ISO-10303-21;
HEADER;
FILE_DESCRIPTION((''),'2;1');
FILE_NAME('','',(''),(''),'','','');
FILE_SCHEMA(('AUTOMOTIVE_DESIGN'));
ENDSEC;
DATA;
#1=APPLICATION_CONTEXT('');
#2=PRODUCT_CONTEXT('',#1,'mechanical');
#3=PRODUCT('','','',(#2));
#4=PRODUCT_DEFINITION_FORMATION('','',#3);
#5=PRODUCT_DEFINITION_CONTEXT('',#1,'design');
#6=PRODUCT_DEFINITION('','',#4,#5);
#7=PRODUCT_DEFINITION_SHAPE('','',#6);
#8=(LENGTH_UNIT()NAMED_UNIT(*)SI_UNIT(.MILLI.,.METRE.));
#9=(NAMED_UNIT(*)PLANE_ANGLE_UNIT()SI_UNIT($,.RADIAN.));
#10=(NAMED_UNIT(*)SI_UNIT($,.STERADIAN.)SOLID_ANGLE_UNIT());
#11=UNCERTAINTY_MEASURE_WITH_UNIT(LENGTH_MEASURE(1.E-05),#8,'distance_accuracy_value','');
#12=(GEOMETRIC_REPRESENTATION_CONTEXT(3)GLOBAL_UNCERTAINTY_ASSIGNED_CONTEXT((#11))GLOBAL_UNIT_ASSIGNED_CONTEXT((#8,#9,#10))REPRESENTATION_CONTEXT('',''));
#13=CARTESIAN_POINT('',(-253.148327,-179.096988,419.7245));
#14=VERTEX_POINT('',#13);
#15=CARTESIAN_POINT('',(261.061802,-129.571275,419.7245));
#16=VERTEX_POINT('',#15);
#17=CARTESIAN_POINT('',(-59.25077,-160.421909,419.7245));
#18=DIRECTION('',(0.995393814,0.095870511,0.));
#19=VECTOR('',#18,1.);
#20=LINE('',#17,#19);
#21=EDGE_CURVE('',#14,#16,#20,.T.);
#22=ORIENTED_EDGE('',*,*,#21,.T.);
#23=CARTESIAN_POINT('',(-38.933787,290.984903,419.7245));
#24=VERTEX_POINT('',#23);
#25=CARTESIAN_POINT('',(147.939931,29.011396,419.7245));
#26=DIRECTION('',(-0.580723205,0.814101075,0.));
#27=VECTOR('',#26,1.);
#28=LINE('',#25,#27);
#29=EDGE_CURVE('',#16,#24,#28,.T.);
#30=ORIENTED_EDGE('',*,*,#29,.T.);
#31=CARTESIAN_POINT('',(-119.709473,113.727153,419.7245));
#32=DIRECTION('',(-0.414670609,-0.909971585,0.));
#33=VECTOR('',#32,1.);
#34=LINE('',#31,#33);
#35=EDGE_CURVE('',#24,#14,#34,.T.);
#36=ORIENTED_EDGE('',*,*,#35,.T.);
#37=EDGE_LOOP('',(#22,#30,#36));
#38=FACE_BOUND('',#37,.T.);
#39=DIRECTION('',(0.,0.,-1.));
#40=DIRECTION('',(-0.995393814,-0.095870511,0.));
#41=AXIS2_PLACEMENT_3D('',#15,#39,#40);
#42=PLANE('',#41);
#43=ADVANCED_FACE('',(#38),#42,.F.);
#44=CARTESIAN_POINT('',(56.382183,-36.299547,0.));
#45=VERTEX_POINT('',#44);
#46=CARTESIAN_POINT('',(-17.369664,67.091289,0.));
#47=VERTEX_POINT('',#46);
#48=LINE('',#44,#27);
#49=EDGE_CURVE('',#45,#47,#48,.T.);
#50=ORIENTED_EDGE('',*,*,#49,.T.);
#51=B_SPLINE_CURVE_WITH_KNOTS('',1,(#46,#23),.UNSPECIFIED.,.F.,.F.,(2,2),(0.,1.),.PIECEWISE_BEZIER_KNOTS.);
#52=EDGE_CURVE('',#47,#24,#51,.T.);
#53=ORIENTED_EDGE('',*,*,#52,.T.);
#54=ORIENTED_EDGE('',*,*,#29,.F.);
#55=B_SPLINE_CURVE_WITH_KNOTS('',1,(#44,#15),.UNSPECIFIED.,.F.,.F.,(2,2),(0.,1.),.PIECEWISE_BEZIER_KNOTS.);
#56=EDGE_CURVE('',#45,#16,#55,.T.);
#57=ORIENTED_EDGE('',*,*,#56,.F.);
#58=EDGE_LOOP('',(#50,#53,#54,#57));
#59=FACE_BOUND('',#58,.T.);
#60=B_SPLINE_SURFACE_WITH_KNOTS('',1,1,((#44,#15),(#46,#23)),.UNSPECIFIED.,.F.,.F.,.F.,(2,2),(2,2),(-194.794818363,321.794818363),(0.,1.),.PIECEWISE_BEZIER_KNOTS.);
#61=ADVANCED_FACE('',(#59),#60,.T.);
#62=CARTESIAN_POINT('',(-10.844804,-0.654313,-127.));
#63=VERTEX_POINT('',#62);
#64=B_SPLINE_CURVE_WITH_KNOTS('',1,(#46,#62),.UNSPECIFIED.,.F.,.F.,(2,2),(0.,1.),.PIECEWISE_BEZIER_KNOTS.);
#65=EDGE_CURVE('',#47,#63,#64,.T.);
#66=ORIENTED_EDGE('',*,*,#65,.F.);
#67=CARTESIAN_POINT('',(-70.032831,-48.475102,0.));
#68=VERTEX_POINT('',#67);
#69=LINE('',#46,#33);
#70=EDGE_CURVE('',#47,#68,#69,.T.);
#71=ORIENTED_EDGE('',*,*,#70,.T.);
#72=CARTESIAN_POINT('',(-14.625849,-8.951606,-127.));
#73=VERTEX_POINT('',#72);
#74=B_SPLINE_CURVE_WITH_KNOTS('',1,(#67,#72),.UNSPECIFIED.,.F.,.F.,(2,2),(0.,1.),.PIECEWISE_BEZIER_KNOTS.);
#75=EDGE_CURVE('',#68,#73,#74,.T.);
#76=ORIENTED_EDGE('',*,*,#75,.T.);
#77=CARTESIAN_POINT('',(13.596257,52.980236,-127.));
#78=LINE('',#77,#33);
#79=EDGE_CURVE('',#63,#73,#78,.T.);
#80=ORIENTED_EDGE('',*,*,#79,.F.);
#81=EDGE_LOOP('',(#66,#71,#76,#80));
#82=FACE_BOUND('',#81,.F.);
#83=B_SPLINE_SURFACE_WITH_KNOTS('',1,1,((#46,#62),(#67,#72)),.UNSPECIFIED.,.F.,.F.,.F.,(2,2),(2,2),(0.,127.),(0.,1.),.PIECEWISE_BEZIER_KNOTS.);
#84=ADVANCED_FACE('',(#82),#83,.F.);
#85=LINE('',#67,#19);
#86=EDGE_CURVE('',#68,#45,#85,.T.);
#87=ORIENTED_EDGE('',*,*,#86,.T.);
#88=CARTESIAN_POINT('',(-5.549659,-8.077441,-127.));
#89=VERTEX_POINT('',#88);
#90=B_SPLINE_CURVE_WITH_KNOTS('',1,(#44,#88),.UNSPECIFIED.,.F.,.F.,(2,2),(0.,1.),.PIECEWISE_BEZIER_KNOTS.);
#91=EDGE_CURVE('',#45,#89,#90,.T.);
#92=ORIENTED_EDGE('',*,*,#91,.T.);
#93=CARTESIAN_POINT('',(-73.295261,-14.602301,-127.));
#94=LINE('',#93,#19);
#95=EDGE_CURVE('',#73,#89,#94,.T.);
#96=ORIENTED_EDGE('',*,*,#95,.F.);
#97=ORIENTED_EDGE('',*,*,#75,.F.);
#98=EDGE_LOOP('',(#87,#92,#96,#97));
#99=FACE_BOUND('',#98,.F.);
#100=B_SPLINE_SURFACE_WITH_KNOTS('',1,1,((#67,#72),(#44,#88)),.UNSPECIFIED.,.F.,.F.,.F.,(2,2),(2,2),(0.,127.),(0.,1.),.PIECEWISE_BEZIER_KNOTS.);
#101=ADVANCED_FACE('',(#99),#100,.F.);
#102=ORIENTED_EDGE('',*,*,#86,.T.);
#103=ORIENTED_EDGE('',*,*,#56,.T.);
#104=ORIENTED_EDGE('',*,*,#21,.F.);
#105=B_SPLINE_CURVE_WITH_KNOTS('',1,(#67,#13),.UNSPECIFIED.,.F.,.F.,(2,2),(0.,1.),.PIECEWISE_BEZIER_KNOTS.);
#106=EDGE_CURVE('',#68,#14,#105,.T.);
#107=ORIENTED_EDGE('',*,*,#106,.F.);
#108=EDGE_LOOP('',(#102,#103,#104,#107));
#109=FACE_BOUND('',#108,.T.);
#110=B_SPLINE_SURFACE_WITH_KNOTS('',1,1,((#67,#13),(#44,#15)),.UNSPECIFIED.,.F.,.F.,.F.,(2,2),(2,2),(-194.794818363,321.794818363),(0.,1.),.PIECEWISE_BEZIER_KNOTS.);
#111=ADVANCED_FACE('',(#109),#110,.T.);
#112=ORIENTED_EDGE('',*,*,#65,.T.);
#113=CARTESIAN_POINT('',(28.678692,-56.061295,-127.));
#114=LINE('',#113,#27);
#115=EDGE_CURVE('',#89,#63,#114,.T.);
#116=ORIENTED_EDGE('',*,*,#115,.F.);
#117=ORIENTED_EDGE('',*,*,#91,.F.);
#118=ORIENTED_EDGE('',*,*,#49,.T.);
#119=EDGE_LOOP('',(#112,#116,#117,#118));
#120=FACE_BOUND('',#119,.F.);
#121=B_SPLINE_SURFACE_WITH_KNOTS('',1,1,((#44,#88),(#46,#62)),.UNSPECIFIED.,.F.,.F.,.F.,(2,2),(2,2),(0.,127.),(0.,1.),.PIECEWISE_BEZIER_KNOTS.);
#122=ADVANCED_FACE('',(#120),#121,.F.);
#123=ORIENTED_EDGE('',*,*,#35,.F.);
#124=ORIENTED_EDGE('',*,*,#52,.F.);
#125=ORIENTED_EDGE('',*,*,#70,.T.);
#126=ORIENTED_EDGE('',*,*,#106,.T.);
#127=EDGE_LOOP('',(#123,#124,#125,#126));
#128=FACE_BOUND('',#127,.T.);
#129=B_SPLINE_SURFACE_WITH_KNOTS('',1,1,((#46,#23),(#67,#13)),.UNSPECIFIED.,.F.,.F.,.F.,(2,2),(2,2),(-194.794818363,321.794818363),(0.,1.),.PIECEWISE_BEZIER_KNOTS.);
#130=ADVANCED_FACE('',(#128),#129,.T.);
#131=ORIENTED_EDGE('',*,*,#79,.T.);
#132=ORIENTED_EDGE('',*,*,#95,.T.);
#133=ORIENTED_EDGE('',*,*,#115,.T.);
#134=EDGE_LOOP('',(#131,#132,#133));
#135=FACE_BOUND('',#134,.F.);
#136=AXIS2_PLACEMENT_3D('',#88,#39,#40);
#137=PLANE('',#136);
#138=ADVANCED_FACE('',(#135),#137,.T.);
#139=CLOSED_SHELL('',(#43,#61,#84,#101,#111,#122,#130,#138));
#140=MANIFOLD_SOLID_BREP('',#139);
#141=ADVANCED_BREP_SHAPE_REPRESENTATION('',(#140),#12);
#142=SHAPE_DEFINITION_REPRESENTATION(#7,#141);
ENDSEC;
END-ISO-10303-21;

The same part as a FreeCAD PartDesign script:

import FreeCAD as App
import Part
import Sketcher

V = App.Vector
Q = App.Units.Quantity

doc = App.newDocument("Part")
params = doc.addObject("Spreadsheet::Sheet", "Params")
for row, (alias, value) in enumerate([
    ("sketch1_length", "5 in"),
    ("pad1_length", "419.7245 mm"),
    ("pad1_taper", "15 deg"),
    ("pad2_length", "5 in"),
    ("pad2_taper", "-15 deg"),
], start=1):
    params.set(f"A{row}", alias)
    params.set(f"B{row}", "=" + value)
    params.setAlias(f"B{row}", alias)

body = doc.addObject("PartDesign::Body", "Body")

# Sketch on XY plane
sketch1 = body.newObject("Sketcher::SketchObject", "Sketch")
sketch1.AttachmentSupport = (doc.getObject("XY_Plane"), [""])
sketch1.MapMode = "FlatFace"
sketch1.addGeometry([
    Part.LineSegment(V(56, -36, 0), V(-17, 67, 0)),
    Part.LineSegment(V(-17, 67, 0), V(-70, -48, 0)),
    Part.LineSegment(V(-70, -48, 0), V(56, -36, 0)),
], False)
sketch1.addConstraint([
    Sketcher.Constraint("Coincident", 0, 2, 1, 1),
    Sketcher.Constraint("Coincident", 1, 2, 2, 1),
    Sketcher.Constraint("Coincident", 2, 2, 0, 1),
    Sketcher.Constraint("Equal", 0, 1),
    Sketcher.Constraint("Equal", 1, 2),
    Sketcher.Constraint("Distance", 0, Q("5 in")),
    Sketcher.Constraint("DistanceY", 1, 2, -1, 1, 48.475102),
    Sketcher.Constraint("DistanceY", -1, 1, 0, 2, 67.091289),
    Sketcher.Constraint("DistanceX", 1, 2, -1, 1, 70.032831),
])
sketch1.setExpression("Constraints[5]", "Params.sketch1_length")
pad1 = body.newObject("PartDesign::Pad", "Pad")
pad1.Profile = sketch1
pad1.setExpression("Length", "Params.pad1_length")
pad1.setExpression("TaperAngle", "Params.pad1_taper")
pad2 = body.newObject("PartDesign::Pad", "Pad001")
pad2.Profile = sketch1
pad2.setExpression("Length", "Params.pad2_length")
pad2.Reversed = True
pad2.setExpression("TaperAngle", "Params.pad2_taper")

doc.recompute()
